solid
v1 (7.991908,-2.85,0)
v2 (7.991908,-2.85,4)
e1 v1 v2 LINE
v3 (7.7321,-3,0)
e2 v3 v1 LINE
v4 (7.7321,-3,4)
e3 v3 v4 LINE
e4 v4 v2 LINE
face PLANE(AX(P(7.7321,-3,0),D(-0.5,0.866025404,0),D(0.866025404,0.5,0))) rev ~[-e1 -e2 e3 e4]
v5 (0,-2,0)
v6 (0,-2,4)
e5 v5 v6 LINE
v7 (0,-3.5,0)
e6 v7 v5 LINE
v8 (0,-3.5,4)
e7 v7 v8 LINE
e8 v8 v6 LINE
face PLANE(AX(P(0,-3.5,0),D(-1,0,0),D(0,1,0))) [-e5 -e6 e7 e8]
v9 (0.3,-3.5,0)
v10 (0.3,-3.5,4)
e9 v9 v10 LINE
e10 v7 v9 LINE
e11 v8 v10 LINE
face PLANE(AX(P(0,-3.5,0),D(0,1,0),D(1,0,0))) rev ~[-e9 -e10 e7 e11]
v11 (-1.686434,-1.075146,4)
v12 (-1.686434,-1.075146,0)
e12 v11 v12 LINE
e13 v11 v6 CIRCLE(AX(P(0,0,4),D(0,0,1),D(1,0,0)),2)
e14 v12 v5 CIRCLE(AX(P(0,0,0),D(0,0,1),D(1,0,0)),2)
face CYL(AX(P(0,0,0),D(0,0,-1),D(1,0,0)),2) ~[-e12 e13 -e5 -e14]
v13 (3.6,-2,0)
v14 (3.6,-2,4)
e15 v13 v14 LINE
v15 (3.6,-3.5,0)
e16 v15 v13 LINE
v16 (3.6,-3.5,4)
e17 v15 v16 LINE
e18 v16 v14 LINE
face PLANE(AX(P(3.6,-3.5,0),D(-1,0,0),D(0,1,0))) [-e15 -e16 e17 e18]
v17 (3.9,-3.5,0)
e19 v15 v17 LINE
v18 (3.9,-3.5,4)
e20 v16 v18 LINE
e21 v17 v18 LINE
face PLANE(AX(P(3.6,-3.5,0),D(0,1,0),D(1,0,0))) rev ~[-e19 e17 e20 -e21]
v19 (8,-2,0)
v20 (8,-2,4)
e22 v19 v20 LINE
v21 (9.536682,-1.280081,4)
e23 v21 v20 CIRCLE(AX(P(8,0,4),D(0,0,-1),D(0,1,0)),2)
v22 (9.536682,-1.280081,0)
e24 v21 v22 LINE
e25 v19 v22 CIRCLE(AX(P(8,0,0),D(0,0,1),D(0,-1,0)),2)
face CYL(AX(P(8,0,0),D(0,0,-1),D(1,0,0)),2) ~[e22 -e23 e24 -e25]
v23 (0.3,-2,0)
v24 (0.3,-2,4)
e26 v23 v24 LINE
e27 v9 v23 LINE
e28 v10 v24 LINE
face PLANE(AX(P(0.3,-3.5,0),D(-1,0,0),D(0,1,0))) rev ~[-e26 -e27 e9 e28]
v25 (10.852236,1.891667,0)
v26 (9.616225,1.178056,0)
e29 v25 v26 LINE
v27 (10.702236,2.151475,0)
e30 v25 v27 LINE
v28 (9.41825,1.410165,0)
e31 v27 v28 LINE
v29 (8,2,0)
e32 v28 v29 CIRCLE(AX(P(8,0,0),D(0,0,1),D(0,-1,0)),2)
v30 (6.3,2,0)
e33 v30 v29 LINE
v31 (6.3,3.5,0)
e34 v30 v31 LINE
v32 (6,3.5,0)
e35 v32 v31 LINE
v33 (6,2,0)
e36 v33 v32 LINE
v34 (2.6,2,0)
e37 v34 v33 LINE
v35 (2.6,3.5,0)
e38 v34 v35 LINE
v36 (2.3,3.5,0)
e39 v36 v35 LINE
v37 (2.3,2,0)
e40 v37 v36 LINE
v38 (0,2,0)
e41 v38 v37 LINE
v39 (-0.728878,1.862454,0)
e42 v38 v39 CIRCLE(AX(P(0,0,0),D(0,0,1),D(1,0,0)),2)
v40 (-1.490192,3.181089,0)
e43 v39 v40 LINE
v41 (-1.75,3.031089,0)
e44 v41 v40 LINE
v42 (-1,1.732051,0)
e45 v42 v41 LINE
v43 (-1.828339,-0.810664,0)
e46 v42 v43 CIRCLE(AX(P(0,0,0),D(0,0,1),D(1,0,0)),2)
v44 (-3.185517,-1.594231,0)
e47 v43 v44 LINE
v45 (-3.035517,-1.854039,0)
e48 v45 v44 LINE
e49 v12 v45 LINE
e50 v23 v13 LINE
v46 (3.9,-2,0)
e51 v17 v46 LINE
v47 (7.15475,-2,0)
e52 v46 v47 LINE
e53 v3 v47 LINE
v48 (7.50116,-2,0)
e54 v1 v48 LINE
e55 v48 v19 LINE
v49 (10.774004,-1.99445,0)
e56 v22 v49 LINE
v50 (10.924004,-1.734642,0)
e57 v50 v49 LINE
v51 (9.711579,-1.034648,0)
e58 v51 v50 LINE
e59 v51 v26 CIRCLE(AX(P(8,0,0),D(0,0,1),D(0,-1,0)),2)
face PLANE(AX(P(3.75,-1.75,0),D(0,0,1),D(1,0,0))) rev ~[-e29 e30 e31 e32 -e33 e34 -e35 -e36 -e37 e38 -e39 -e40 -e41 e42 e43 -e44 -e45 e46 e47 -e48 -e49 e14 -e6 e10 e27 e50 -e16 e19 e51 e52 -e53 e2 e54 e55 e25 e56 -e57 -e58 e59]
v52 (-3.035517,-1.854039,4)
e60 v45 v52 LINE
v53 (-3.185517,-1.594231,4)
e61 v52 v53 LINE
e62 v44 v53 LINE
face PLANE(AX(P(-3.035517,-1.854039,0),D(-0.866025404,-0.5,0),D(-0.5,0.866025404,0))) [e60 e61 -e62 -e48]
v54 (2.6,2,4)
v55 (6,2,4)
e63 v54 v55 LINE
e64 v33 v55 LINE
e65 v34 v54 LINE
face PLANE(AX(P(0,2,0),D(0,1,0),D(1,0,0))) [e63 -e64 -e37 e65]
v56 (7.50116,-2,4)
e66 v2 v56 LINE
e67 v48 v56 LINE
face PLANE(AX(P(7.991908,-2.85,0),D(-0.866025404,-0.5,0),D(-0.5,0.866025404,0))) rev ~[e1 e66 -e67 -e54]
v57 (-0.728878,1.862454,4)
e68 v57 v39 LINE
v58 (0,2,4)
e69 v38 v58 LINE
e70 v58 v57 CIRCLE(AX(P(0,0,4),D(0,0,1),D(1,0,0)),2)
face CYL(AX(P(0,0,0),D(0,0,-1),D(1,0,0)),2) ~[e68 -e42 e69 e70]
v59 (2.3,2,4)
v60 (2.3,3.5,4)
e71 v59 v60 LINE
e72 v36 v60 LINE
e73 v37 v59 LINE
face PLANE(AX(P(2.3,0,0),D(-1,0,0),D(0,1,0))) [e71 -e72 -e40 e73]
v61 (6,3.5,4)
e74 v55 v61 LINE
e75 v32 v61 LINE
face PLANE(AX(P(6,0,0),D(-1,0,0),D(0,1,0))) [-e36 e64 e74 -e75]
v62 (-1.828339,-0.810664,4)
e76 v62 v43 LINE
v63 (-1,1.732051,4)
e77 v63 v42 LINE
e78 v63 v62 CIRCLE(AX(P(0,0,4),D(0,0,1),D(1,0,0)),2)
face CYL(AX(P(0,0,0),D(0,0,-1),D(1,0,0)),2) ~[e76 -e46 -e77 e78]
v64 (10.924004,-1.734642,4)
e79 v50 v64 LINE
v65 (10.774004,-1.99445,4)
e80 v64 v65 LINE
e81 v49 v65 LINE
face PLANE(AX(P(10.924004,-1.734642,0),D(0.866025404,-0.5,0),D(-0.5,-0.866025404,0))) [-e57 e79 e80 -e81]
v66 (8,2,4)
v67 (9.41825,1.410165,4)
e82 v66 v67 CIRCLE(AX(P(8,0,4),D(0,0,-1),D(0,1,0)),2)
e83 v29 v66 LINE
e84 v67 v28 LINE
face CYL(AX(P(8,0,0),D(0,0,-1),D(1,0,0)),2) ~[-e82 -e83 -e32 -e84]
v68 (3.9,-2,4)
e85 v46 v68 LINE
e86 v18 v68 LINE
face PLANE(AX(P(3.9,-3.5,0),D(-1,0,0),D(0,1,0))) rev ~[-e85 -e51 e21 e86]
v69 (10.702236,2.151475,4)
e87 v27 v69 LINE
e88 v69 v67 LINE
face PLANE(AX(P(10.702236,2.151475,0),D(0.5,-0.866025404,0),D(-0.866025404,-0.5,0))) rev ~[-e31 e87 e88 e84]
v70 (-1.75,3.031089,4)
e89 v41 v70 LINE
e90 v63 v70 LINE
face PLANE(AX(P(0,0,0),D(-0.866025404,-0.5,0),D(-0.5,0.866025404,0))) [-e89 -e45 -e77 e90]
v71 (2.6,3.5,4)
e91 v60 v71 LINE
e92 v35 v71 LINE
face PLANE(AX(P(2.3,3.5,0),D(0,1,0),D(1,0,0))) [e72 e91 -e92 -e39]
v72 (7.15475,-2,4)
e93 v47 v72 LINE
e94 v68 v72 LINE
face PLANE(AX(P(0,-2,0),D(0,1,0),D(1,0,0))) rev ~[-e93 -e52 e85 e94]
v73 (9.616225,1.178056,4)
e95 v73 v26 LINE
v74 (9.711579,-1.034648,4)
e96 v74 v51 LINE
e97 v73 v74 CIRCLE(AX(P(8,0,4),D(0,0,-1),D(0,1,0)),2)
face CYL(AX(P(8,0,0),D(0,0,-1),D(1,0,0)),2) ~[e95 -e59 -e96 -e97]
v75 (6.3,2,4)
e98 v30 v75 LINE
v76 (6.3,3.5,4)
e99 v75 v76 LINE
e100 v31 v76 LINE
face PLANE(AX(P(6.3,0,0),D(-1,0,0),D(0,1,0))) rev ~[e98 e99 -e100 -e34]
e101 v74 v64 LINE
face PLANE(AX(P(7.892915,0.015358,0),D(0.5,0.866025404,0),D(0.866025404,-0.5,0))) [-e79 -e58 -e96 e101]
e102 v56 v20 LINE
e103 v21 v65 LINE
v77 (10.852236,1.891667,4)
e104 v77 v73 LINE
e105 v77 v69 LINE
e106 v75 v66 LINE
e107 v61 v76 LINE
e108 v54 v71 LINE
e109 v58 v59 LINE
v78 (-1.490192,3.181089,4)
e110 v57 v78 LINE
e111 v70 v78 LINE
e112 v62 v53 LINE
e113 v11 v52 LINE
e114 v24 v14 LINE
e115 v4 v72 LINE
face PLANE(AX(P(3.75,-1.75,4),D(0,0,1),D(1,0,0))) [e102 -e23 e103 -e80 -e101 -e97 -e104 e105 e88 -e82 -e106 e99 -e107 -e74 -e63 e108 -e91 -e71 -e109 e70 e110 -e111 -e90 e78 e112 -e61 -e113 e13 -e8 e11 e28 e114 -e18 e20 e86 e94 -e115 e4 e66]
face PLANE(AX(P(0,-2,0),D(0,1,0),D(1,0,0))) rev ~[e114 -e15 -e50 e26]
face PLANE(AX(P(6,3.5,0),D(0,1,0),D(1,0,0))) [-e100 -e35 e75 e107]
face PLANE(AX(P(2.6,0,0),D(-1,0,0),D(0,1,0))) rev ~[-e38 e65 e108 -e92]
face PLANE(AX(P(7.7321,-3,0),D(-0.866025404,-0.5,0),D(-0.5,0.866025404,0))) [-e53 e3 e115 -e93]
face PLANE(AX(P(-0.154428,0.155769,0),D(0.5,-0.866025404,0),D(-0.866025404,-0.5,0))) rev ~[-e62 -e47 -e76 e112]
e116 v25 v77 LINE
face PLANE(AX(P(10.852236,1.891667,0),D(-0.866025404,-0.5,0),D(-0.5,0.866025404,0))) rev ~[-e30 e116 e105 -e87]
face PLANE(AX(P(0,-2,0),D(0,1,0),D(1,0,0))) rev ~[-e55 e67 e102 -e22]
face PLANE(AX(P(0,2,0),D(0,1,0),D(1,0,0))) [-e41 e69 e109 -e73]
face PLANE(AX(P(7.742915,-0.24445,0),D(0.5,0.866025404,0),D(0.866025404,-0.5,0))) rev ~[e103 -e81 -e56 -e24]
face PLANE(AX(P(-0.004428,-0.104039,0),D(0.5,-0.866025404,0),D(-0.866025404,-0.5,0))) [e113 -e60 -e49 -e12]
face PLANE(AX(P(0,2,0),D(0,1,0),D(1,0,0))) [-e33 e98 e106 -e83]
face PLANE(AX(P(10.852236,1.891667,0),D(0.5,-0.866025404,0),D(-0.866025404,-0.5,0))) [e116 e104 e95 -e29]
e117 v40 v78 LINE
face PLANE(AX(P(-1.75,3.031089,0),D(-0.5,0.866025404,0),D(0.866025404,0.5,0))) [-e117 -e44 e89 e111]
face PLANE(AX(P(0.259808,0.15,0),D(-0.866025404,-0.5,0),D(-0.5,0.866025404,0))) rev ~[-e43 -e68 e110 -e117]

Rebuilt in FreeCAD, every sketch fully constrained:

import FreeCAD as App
import Part
import Sketcher
from FreeCAD import Vector
Q = App.Units.Quantity

doc = App.newDocument("Part")
body = doc.addObject("PartDesign::Body", "Body")

# Sketch on XY plane
sketch1 = body.newObject("Sketcher::SketchObject", "Sketch")
sketch1.AttachmentSupport = (doc.getObject("XY_Plane"), [""])
sketch1.MapMode = "FlatFace"
sketch1.addGeometry([
    Part.LineSegment(Vector(0, 3.5, 0), Vector(0, 0, 0)),
    Part.LineSegment(Vector(0, 0, 0), Vector(0.3, 0, 0)),
    Part.LineSegment(Vector(0.3, 0, 0), Vector(0.3, 3.5, 0)),
    Part.LineSegment(Vector(0.3, 3.5, 0), Vector(0, 3.5, 0)),
], False)
sketch1.addConstraint([
    Sketcher.Constraint("Coincident", 0, 2, 1, 1),
    Sketcher.Constraint("Coincident", 1, 2, 2, 1),
    Sketcher.Constraint("Coincident", 2, 2, 3, 1),
    Sketcher.Constraint("Coincident", 3, 2, 0, 1),
    Sketcher.Constraint("Vertical", 0),
    Sketcher.Constraint("Horizontal", 1),
    Sketcher.Constraint("Vertical", 2),
    Sketcher.Constraint("Horizontal", 3),
    Sketcher.Constraint("Coincident", 0, 2, -1, 1),
    Sketcher.Constraint("DistanceX", 1, 1, 1, 2, Q("0.3 mm")),
    Sketcher.Constraint("DistanceY", 0, 2, 0, 1, Q("3.5 mm")),
])
pad1 = body.newObject("PartDesign::Pad", "Pad")
pad1.Profile = sketch1
pad1.Length = 4
body2 = doc.addObject("PartDesign::Body", "Body001")
doc.recompute()

body.Placement = App.Placement(Vector(7.892915, 0.015358, 0), App.Rotation(Vector(0, 0, -1), 120))
boolean = body2.newObject("PartDesign::Boolean", "Boolean")
boolean.Type = "Fuse"
boolean.addObjects([body])
body3 = doc.addObject("PartDesign::Body", "Body002")

# Sketch on XY plane
sketch2 = body3.newObject("Sketcher::SketchObject", "Sketch001")
sketch2.AttachmentSupport = (doc.getObject("XY_Plane002"), [""])
sketch2.MapMode = "FlatFace"
sketch2.addGeometry([
    Part.LineSegment(Vector(0, 3.5, 0), Vector(0, 0, 0)),
    Part.LineSegment(Vector(0, 0, 0), Vector(0.3, 0, 0)),
    Part.LineSegment(Vector(0.3, 0, 0), Vector(0.3, 3.5, 0)),
    Part.LineSegment(Vector(0.3, 3.5, 0), Vector(0, 3.5, 0)),
], False)
sketch2.addConstraint([
    Sketcher.Constraint("Coincident", 0, 2, 1, 1),
    Sketcher.Constraint("Coincident", 1, 2, 2, 1),
    Sketcher.Constraint("Coincident", 2, 2, 3, 1),
    Sketcher.Constraint("Coincident", 3, 2, 0, 1),
    Sketcher.Constraint("Vertical", 0),
    Sketcher.Constraint("Horizontal", 1),
    Sketcher.Constraint("Vertical", 2),
    Sketcher.Constraint("Horizontal", 3),
    Sketcher.Constraint("Coincident", 0, 2, -1, 1),
    Sketcher.Constraint("DistanceX", 1, 1, 1, 2, Q("0.3 mm")),
    Sketcher.Constraint("DistanceY", 0, 2, 0, 1, Q("3.5 mm")),
])
pad2 = body3.newObject("PartDesign::Pad", "Pad001")
pad2.Profile = sketch2
pad2.Length = 4
body4 = doc.addObject("PartDesign::Body", "Body003")
doc.recompute()

body3.Placement = App.Placement(Vector(10.852236, 1.891667, 0), App.Rotation(Vector(0, 0, 1), 120))
boolean2 = body4.newObject("PartDesign::Boolean", "Boolean001")
boolean2.Type = "Fuse"
boolean2.addObjects([body3])
body5 = doc.addObject("PartDesign::Body", "Body004")

# Sketch on XY plane
sketch3 = body5.newObject("Sketcher::SketchObject", "Sketch002")
sketch3.AttachmentSupport = (doc.getObject("XY_Plane004"), [""])
sketch3.MapMode = "FlatFace"
sketch3.addGeometry([
    Part.LineSegment(Vector(0, 3.5, 0), Vector(0, 0, 0)),
    Part.LineSegment(Vector(0, 0, 0), Vector(0.3, 0, 0)),
    Part.LineSegment(Vector(0.3, 0, 0), Vector(0.3, 3.5, 0)),
    Part.LineSegment(Vector(0.3, 3.5, 0), Vector(0, 3.5, 0)),
], False)
sketch3.addConstraint([
    Sketcher.Constraint("Coincident", 0, 2, 1, 1),
    Sketcher.Constraint("Coincident", 1, 2, 2, 1),
    Sketcher.Constraint("Coincident", 2, 2, 3, 1),
    Sketcher.Constraint("Coincident", 3, 2, 0, 1),
    Sketcher.Constraint("Vertical", 0),
    Sketcher.Constraint("Horizontal", 1),
    Sketcher.Constraint("Vertical", 2),
    Sketcher.Constraint("Horizontal", 3),
    Sketcher.Constraint("Coincident", 0, 2, -1, 1),
    Sketcher.Constraint("DistanceX", 1, 1, 1, 2, Q("0.3 mm")),
    Sketcher.Constraint("DistanceY", 0, 2, 0, 1, Q("3.5 mm")),
])
pad3 = body5.newObject("PartDesign::Pad", "Pad002")
pad3.Profile = sketch3
pad3.Length = 4
body6 = doc.addObject("PartDesign::Body", "Body005")
doc.recompute()

body5.Placement = App.Placement(Vector(-0.004428, -0.104039, 0), App.Rotation(Vector(0, 0, 1), 120))
boolean3 = body6.newObject("PartDesign::Boolean", "Boolean002")
boolean3.Type = "Fuse"
boolean3.addObjects([body5])
body7 = doc.addObject("PartDesign::Body", "Body006")

# Sketch on XY plane
sketch4 = body7.newObject("Sketcher::SketchObject", "Sketch003")
sketch4.AttachmentSupport = (doc.getObject("XY_Plane006"), [""])
sketch4.MapMode = "FlatFace"
sketch4.addGeometry([
    Part.LineSegment(Vector(2.3, 3.5, 0), Vector(2.3, 0, 0)),
    Part.LineSegment(Vector(2.3, 0, 0), Vector(2.6, 0, 0)),
    Part.LineSegment(Vector(2.6, 0, 0), Vector(2.6, 3.5, 0)),
    Part.LineSegment(Vector(2.6, 3.5, 0), Vector(2.3, 3.5, 0)),
], False)
sketch4.addConstraint([
    Sketcher.Constraint("Coincident", 0, 2, 1, 1),
    Sketcher.Constraint("Coincident", 1, 2, 2, 1),
    Sketcher.Constraint("Coincident", 2, 2, 3, 1),
    Sketcher.Constraint("Coincident", 3, 2, 0, 1),
    Sketcher.Constraint("Vertical", 0),
    Sketcher.Constraint("Horizontal", 1),
    Sketcher.Constraint("Vertical", 2),
    Sketcher.Constraint("Horizontal", 3),
    Sketcher.Constraint("PointOnObject", 0, 2, -1),
    Sketcher.Constraint("DistanceX", 1, 1, 1, 2, Q("0.3 mm")),
    Sketcher.Constraint("DistanceY", 0, 2, 0, 1, Q("3.5 mm")),
    Sketcher.Constraint("DistanceX", -1, 1, 0, 2, Q("2.3 mm")),
])
pad4 = body7.newObject("PartDesign::Pad", "Pad003")
pad4.Profile = sketch4
pad4.Length = 4
body8 = doc.addObject("PartDesign::Body", "Body007")

# Sketch on XY plane
sketch5 = body8.newObject("Sketcher::SketchObject", "Sketch004")
sketch5.AttachmentSupport = (doc.getObject("XY_Plane007"), [""])
sketch5.MapMode = "FlatFace"
sketch5.addGeometry([
    Part.LineSegment(Vector(0, 3.5, 0), Vector(0, 0, 0)),
    Part.LineSegment(Vector(0, 0, 0), Vector(0.3, 0, 0)),
    Part.LineSegment(Vector(0.3, 0, 0), Vector(0.3, 3.5, 0)),
    Part.LineSegment(Vector(0.3, 3.5, 0), Vector(0, 3.5, 0)),
], False)
sketch5.addConstraint([
    Sketcher.Constraint("Coincident", 0, 2, 1, 1),
    Sketcher.Constraint("Coincident", 1, 2, 2, 1),
    Sketcher.Constraint("Coincident", 2, 2, 3, 1),
    Sketcher.Constraint("Coincident", 3, 2, 0, 1),
    Sketcher.Constraint("Vertical", 0),
    Sketcher.Constraint("Horizontal", 1),
    Sketcher.Constraint("Vertical", 2),
    Sketcher.Constraint("Horizontal", 3),
    Sketcher.Constraint("Coincident", 0, 2, -1, 1),
    Sketcher.Constraint("DistanceX", 1, 1, 1, 2, Q("0.3 mm")),
    Sketcher.Constraint("DistanceY", 0, 2, 0, 1, Q("3.5 mm")),
])
pad5 = body8.newObject("PartDesign::Pad", "Pad004")
pad5.Profile = sketch5
pad5.Length = 4
body9 = doc.addObject("PartDesign::Body", "Body008")
doc.recompute()

body8.Placement = App.Placement(Vector(7.7321, -3, 0), App.Rotation(Vector(0, 0, 1), 30))
boolean4 = body9.newObject("PartDesign::Boolean", "Boolean003")
boolean4.Type = "Fuse"
boolean4.addObjects([body8])
body10 = doc.addObject("PartDesign::Body", "Body009")

# Sketch on XY plane
sketch6 = body10.newObject("Sketcher::SketchObject", "Sketch005")
sketch6.AttachmentSupport = (doc.getObject("XY_Plane009"), [""])
sketch6.MapMode = "FlatFace"
sketch6.addGeometry([
    Part.LineSegment(Vector(0, 3.5, 0), Vector(0, 0, 0)),
    Part.LineSegment(Vector(0, 0, 0), Vector(0.3, 0, 0)),
    Part.LineSegment(Vector(0.3, 0, 0), Vector(0.3, 3.5, 0)),
    Part.LineSegment(Vector(0.3, 3.5, 0), Vector(0, 3.5, 0)),
], False)
sketch6.addConstraint([
    Sketcher.Constraint("Coincident", 0, 2, 1, 1),
    Sketcher.Constraint("Coincident", 1, 2, 2, 1),
    Sketcher.Constraint("Coincident", 2, 2, 3, 1),
    Sketcher.Constraint("Coincident", 3, 2, 0, 1),
    Sketcher.Constraint("Vertical", 0),
    Sketcher.Constraint("Horizontal", 1),
    Sketcher.Constraint("Vertical", 2),
    Sketcher.Constraint("Horizontal", 3),
    Sketcher.Constraint("Coincident", 0, 2, -1, 1),
    Sketcher.Constraint("DistanceX", 1, 1, 1, 2, Q("0.3 mm")),
    Sketcher.Constraint("DistanceY", 0, 2, 0, 1, Q("3.5 mm")),
])
pad6 = body10.newObject("PartDesign::Pad", "Pad005")
pad6.Profile = sketch6
pad6.Length = 4
body11 = doc.addObject("PartDesign::Body", "Body010")
doc.recompute()

body10.Placement = App.Placement(Vector(0, 0, 0), App.Rotation(Vector(0, 0, 1), 30))
boolean5 = body11.newObject("PartDesign::Boolean", "Boolean004")
boolean5.Type = "Fuse"
boolean5.addObjects([body10])
body12 = doc.addObject("PartDesign::Body", "Body011")

# Sketch on XY plane
sketch7 = body12.newObject("Sketcher::SketchObject", "Sketch006")
sketch7.AttachmentSupport = (doc.getObject("XY_Plane011"), [""])
sketch7.MapMode = "FlatFace"
sketch7.addGeometry([
    Part.LineSegment(Vector(6, 3.5, 0), Vector(6, 0, 0)),
    Part.LineSegment(Vector(6, 0, 0), Vector(6.3, 0, 0)),
    Part.LineSegment(Vector(6.3, 0, 0), Vector(6.3, 3.5, 0)),
    Part.LineSegment(Vector(6.3, 3.5, 0), Vector(6, 3.5, 0)),
], False)
sketch7.addConstraint([
    Sketcher.Constraint("Coincident", 0, 2, 1, 1),
    Sketcher.Constraint("Coincident", 1, 2, 2, 1),
    Sketcher.Constraint("Coincident", 2, 2, 3, 1),
    Sketcher.Constraint("Coincident", 3, 2, 0, 1),
    Sketcher.Constraint("Vertical", 0),
    Sketcher.Constraint("Horizontal", 1),
    Sketcher.Constraint("Vertical", 2),
    Sketcher.Constraint("Horizontal", 3),
    Sketcher.Constraint("PointOnObject", 0, 2, -1),
    Sketcher.Constraint("DistanceX", 1, 1, 1, 2, Q("0.3 mm")),
    Sketcher.Constraint("DistanceY", 0, 2, 0, 1, Q("3.5 mm")),
    Sketcher.Constraint("DistanceX", -1, 1, 0, 2, Q("6 mm")),
])
pad7 = body12.newObject("PartDesign::Pad", "Pad006")
pad7.Profile = sketch7
pad7.Length = 4
body13 = doc.addObject("PartDesign::Body", "Body012")

# Sketch on XY plane
sketch8 = body13.newObject("Sketcher::SketchObject", "Sketch007")
sketch8.AttachmentSupport = (doc.getObject("XY_Plane012"), [""])
sketch8.MapMode = "FlatFace"
sketch8.addGeometry([
    Part.LineSegment(Vector(3.6, 0, 0), Vector(3.6, -3.5, 0)),
    Part.LineSegment(Vector(3.6, -3.5, 0), Vector(3.9, -3.5, 0)),
    Part.LineSegment(Vector(3.9, -3.5, 0), Vector(3.9, 0, 0)),
    Part.LineSegment(Vector(3.9, 0, 0), Vector(3.6, 0, 0)),
], False)
sketch8.addConstraint([
    Sketcher.Constraint("Coincident", 0, 2, 1, 1),
    Sketcher.Constraint("Coincident", 1, 2, 2, 1),
    Sketcher.Constraint("Coincident", 2, 2, 3, 1),
    Sketcher.Constraint("Coincident", 3, 2, 0, 1),
    Sketcher.Constraint("Vertical", 0),
    Sketcher.Constraint("Horizontal", 1),
    Sketcher.Constraint("Vertical", 2),
    Sketcher.Constraint("Horizontal", 3),
    Sketcher.Constraint("PointOnObject", 2, 2, -1),
    Sketcher.Constraint("DistanceX", 1, 1, 1, 2, Q("0.3 mm")),
    Sketcher.Constraint("DistanceY", 0, 2, 0, 1, Q("3.5 mm")),
    Sketcher.Constraint("DistanceX", -1, 1, 0, 2, Q("3.6 mm")),
])
pad8 = body13.newObject("PartDesign::Pad", "Pad007")
pad8.Profile = sketch8
pad8.Length = 4
body14 = doc.addObject("PartDesign::Body", "Body013")
body14.AllowCompound = True

# Sketch on XY plane
sketch9 = body14.newObject("Sketcher::SketchObject", "Sketch008")
sketch9.AttachmentSupport = (doc.getObject("XY_Plane013"), [""])
sketch9.MapMode = "FlatFace"
sketch9.addGeometry([
    Part.LineSegment(Vector(0, 0, 0), Vector(0, -3.5, 0)),
    Part.LineSegment(Vector(0, -3.5, 0), Vector(0.3, -3.5, 0)),
    Part.LineSegment(Vector(0.3, -3.5, 0), Vector(0.3, 0, 0)),
    Part.LineSegment(Vector(0.3, 0, 0), Vector(0, 0, 0)),
], False)
sketch9.addConstraint([
    Sketcher.Constraint("Coincident", 0, 2, 1, 1),
    Sketcher.Constraint("Coincident", 1, 2, 2, 1),
    Sketcher.Constraint("Coincident", 2, 2, 3, 1),
    Sketcher.Constraint("Coincident", 3, 2, 0, 1),
    Sketcher.Constraint("Vertical", 0),
    Sketcher.Constraint("Horizontal", 1),
    Sketcher.Constraint("Vertical", 2),
    Sketcher.Constraint("Horizontal", 3),
    Sketcher.Constraint("Coincident", 3, 2, -1, 1),
    Sketcher.Constraint("DistanceX", 1, 1, 1, 2, Q("0.3 mm")),
    Sketcher.Constraint("DistanceY", 0, 2, 0, 1, Q("3.5 mm")),
])
pad9 = body14.newObject("PartDesign::Pad", "Pad008")
pad9.Profile = sketch9
pad9.Length = 4
doc.recompute()

boolean6 = body14.newObject("PartDesign::Boolean", "Boolean005")
boolean6.Type = "Fuse"
boolean6.addObjects([body2])
doc.recompute()

boolean7 = body14.newObject("PartDesign::Boolean", "Boolean006")
boolean7.Type = "Fuse"
boolean7.addObjects([body4])
doc.recompute()

boolean8 = body14.newObject("PartDesign::Boolean", "Boolean007")
boolean8.Type = "Fuse"
boolean8.addObjects([body6])
doc.recompute()

boolean9 = body14.newObject("PartDesign::Boolean", "Boolean008")
boolean9.Type = "Fuse"
boolean9.addObjects([body7])
doc.recompute()

boolean10 = body14.newObject("PartDesign::Boolean", "Boolean009")
boolean10.Type = "Fuse"
boolean10.addObjects([body9])
doc.recompute()

boolean11 = body14.newObject("PartDesign::Boolean", "Boolean010")
boolean11.Type = "Fuse"
boolean11.addObjects([body11])
doc.recompute()

boolean12 = body14.newObject("PartDesign::Boolean", "Boolean011")
boolean12.Type = "Fuse"
boolean12.addObjects([body12])
doc.recompute()

boolean13 = body14.newObject("PartDesign::Boolean", "Boolean012")
boolean13.Type = "Fuse"
boolean13.addObjects([body13])
body15 = doc.addObject("PartDesign::Body", "Body014")

# Sketch on XY plane
sketch10 = body15.newObject("Sketcher::SketchObject", "Sketch009")
sketch10.AttachmentSupport = (doc.getObject("XY_Plane014"), [""])
sketch10.MapMode = "FlatFace"
sketch10.addGeometry([
    Part.LineSegment(Vector(0, 2, 0), Vector(0, -2, 0)),
    Part.LineSegment(Vector(0, -2, 0), Vector(8, -2, 0)),
    Part.LineSegment(Vector(8, -2, 0), Vector(8, 2, 0)),
    Part.LineSegment(Vector(8, 2, 0), Vector(0, 2, 0)),
], False)
sketch10.addConstraint([
    Sketcher.Constraint("Coincident", 0, 2, 1, 1),
    Sketcher.Constraint("Coincident", 1, 2, 2, 1),
    Sketcher.Constraint("Coincident", 2, 2, 3, 1),
    Sketcher.Constraint("Coincident", 3, 2, 0, 1),
    Sketcher.Constraint("Vertical", 0),
    Sketcher.Constraint("Horizontal", 1),
    Sketcher.Constraint("Vertical", 2),
    Sketcher.Constraint("Horizontal", 3),
    Sketcher.Constraint("Symmetric", 0, 2, 3, 2, -1, 1),
    Sketcher.Constraint("DistanceX", 1, 1, 1, 2, Q("8 mm")),
    Sketcher.Constraint("DistanceY", 0, 2, 0, 1, Q("4 mm")),
])
pad10 = body15.newObject("PartDesign::Pad", "Pad009")
pad10.Profile = sketch10
pad10.Length = 4
body16 = doc.addObject("PartDesign::Body", "Body015")

# Sketch on XY plane
sketch11 = body16.newObject("Sketcher::SketchObject", "Sketch010")
sketch11.AttachmentSupport = (doc.getObject("XY_Plane015"), [""])
sketch11.MapMode = "FlatFace"
sketch11.addGeometry(Part.Circle(Vector(8, 0, 0), Vector(0, 0, 1), 2), False)
sketch11.addConstraint([
    Sketcher.Constraint("PointOnObject", 0, 3, -1),
    Sketcher.Constraint("Diameter", 0, Q("4 mm")),
    Sketcher.Constraint("DistanceX", -1, 1, 0, 3, Q("8 mm")),
])
pad11 = body16.newObject("PartDesign::Pad", "Pad010")
pad11.Profile = sketch11
pad11.Length = 4
body17 = doc.addObject("PartDesign::Body", "Body016")

# Sketch on XY plane
sketch12 = body17.newObject("Sketcher::SketchObject", "Sketch011")
sketch12.AttachmentSupport = (doc.getObject("XY_Plane016"), [""])
sketch12.MapMode = "FlatFace"
sketch12.addGeometry(Part.Circle(Vector(0, 0, 0), Vector(0, 0, 1), 2), False)
sketch12.addConstraint([
    Sketcher.Constraint("Coincident", 0, 3, -1, 1),
    Sketcher.Constraint("Diameter", 0, Q("4 mm")),
])
pad12 = body17.newObject("PartDesign::Pad", "Pad011")
pad12.Profile = sketch12
pad12.Length = 4
doc.recompute()

boolean14 = body17.newObject("PartDesign::Boolean", "Boolean013")
boolean14.Type = "Fuse"
boolean14.addObjects([body15])
doc.recompute()

boolean15 = body17.newObject("PartDesign::Boolean", "Boolean014")
boolean15.Type = "Fuse"
boolean15.addObjects([body16])
doc.recompute()

boolean16 = body17.newObject("PartDesign::Boolean", "Boolean015")
boolean16.Type = "Fuse"
boolean16.addObjects([body14])

doc.recompute()
